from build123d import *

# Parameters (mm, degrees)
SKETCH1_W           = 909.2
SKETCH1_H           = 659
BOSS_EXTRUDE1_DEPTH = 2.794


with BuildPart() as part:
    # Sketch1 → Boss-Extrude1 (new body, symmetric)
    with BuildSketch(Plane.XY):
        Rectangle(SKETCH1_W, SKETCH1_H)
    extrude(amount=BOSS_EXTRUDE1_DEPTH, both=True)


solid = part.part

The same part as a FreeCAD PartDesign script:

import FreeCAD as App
import Part
import Sketcher
from FreeCAD import Vector


def add_polygon(sketch, points):
    """Adds a closed chain of lines whose ends are joined by coincident constraints."""
    first, n = sketch.GeometryCount, len(points)
    for a, b in zip(points, points[1:] + points[:1]):
        sketch.addGeometry(Part.LineSegment(App.Vector(*a, 0), App.Vector(*b, 0)), False)
    for i in range(n):
        sketch.addConstraint(Sketcher.Constraint("Coincident", first + i, 2, first + (i + 1) % n, 1))

doc = App.newDocument("Part")
body = doc.addObject("PartDesign::Body", "Body")

sketch1 = body.newObject("Sketcher::SketchObject", "Sketch")
sketch1.AttachmentSupport = (doc.getObject("XY_Plane"), [""])
sketch1.MapMode = "FlatFace"
add_polygon(sketch1, [(-454.6, 329.5), (-454.6, -329.5), (454.6, -329.5), (454.6, 329.5)])
sketch1.addConstraint(Sketcher.Constraint("Vertical", 0))
sketch1.addConstraint(Sketcher.Constraint("Horizontal", 1))
sketch1.addConstraint(Sketcher.Constraint("Vertical", 2))
sketch1.addConstraint(Sketcher.Constraint("Horizontal", 3))
sketch1.addConstraint(Sketcher.Constraint("Symmetric", 0, 2, 2, 2, -1, 1))
sketch1.addConstraint(Sketcher.Constraint("DistanceY", 0, 2, 0, 1, 659.0))
sketch1.addConstraint(Sketcher.Constraint("DistanceX", 1, 1, 1, 2, 909.2))
pad1 = body.newObject("PartDesign::Pad", "Pad")
pad1.Profile = sketch1
pad1.Length = 5.588
pad1.Midplane = True

doc.recompute()
